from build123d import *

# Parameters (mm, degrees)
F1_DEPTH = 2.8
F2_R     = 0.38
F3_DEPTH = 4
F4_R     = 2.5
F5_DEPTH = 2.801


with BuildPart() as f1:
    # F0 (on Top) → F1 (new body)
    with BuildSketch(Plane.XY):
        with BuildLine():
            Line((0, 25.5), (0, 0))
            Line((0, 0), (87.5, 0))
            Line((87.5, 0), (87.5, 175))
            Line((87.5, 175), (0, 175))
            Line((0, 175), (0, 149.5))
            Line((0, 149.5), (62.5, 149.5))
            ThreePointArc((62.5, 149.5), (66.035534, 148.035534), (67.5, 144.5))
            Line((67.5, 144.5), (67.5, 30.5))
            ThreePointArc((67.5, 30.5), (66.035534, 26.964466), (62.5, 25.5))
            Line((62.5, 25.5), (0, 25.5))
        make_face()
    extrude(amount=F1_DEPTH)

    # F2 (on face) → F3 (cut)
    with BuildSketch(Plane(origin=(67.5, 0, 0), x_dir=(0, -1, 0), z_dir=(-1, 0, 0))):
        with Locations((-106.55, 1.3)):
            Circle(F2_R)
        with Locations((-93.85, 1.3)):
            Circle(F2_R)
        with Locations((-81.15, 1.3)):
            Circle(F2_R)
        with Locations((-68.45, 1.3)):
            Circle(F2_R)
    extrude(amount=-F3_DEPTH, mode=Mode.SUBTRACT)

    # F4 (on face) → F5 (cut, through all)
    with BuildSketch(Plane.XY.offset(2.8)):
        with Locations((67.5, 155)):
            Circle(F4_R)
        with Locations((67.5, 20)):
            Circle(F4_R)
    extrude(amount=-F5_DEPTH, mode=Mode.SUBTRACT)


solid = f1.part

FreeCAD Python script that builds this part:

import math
import FreeCAD as App
import Part
import Sketcher

V = App.Vector
Q = App.Units.Quantity

doc = App.newDocument("Part")
body = doc.addObject("PartDesign::Body", "Body")

# Sketch on XY plane
sketch1 = body.newObject("Sketcher::SketchObject", "Sketch")
sketch1.AttachmentSupport = (doc.getObject("XY_Plane"), [""])
sketch1.MapMode = "FlatFace"
sketch1.addGeometry(Part.LineSegment(V(0, 25.5, 0), V(0, 0, 0)), False)
sketch1.addGeometry(Part.LineSegment(V(0, 0, 0), V(87.5, 0, 0)), False)
sketch1.addGeometry(Part.LineSegment(V(87.5, 0, 0), V(87.5, 175, 0)), False)
sketch1.addGeometry(Part.LineSegment(V(87.5, 175, 0), V(0, 175, 0)), False)
sketch1.addGeometry(Part.LineSegment(V(0, 175, 0), V(0, 149.5, 0)), False)
sketch1.addGeometry(Part.LineSegment(V(0, 149.5, 0), V(62.5, 149.5, 0)), False)
sketch1.addGeometry(Part.ArcOfCircle(Part.Circle(V(62.5, 144.5, 0), V(0, 0, 1), 5), math.radians(0), math.radians(90)), False)
sketch1.addGeometry(Part.LineSegment(V(67.5, 144.5, 0), V(67.5, 30.5, 0)), False)
sketch1.addGeometry(Part.ArcOfCircle(Part.Circle(V(62.5, 30.5, 0), V(0, 0, 1), 5), math.radians(-90), math.radians(0)), False)
sketch1.addGeometry(Part.LineSegment(V(62.5, 25.5, 0), V(0, 25.5, 0)), False)
sketch1.addConstraint(Sketcher.Constraint("Coincident", 0, 2, 1, 1))
sketch1.addConstraint(Sketcher.Constraint("Coincident", 1, 2, 2, 1))
sketch1.addConstraint(Sketcher.Constraint("Coincident", 2, 2, 3, 1))
sketch1.addConstraint(Sketcher.Constraint("Coincident", 3, 2, 4, 1))
sketch1.addConstraint(Sketcher.Constraint("Coincident", 4, 2, 5, 1))
sketch1.addConstraint(Sketcher.Constraint("Tangent", 5, 2, 6, 2))
sketch1.addConstraint(Sketcher.Constraint("Tangent", 6, 1, 7, 1))
sketch1.addConstraint(Sketcher.Constraint("Tangent", 7, 2, 8, 2))
sketch1.addConstraint(Sketcher.Constraint("Tangent", 8, 1, 9, 1))
sketch1.addConstraint(Sketcher.Constraint("Coincident", 9, 2, 0, 1))
sketch1.addConstraint(Sketcher.Constraint("Vertical", 0))
sketch1.addConstraint(Sketcher.Constraint("Horizontal", 1))
sketch1.addConstraint(Sketcher.Constraint("Vertical", 2))
sketch1.addConstraint(Sketcher.Constraint("Horizontal", 3))
sketch1.addConstraint(Sketcher.Constraint("Vertical", 4))
sketch1.addConstraint(Sketcher.Constraint("Horizontal", 5))
sketch1.addConstraint(Sketcher.Constraint("Vertical", 7))
sketch1.addConstraint(Sketcher.Constraint("Horizontal", 9))
sketch1.addConstraint(Sketcher.Constraint("Coincident", 0, 2, -1, 1))
sketch1.addConstraint(Sketcher.Constraint("Equal", 6, 8))
sketch1.addConstraint(Sketcher.Constraint("PointOnObject", 3, 2, -2))
sketch1.addConstraint(Sketcher.Constraint("Equal", 0, 4))
sketch1.addConstraint(Sketcher.Constraint("Radius", 6, Q("5 mm")))
sketch1.addConstraint(Sketcher.Constraint("DistanceY", 2, 1, 2, 2, Q("175 mm")))
sketch1.addConstraint(Sketcher.Constraint("DistanceY", 7, 2, 7, 1, Q("114 mm")))
sketch1.addConstraint(Sketcher.Constraint("DistanceX", 1, 1, 1, 2, Q("87.5 mm")))
sketch1.addConstraint(Sketcher.Constraint("DistanceX", 5, 1, 5, 2, Q("62.5 mm")))
pad1 = body.newObject("PartDesign::Pad", "Pad")
pad1.Profile = sketch1
pad1.Length = 2.8

# Sketch on YZ plane
sketch2 = body.newObject("Sketcher::SketchObject", "Sketch001")
sketch2.AttachmentSupport = (doc.getObject("YZ_Plane"), [""])
sketch2.MapMode = "FlatFace"
sketch2.AttachmentOffset = App.Placement(V(0, 0, 67.5), App.Rotation())
sketch2.addGeometry(Part.Circle(V(106.55, 1.3, 0), V(0, 0, 1), 0.38), False)
sketch2.addGeometry(Part.Circle(V(93.85, 1.3, 0), V(0, 0, 1), 0.38), False)
sketch2.addGeometry(Part.Circle(V(81.15, 1.3, 0), V(0, 0, 1), 0.38), False)
sketch2.addGeometry(Part.Circle(V(68.45, 1.3, 0), V(0, 0, 1), 0.38), False)
sketch2.addConstraint(Sketcher.Constraint("Equal", 0, 1))
sketch2.addConstraint(Sketcher.Constraint("Equal", 1, 2))
sketch2.addConstraint(Sketcher.Constraint("Equal", 2, 3))
sketch2.addConstraint(Sketcher.Constraint("Horizontal", 0, 3, 1, 3))
sketch2.addConstraint(Sketcher.Constraint("Horizontal", 1, 3, 2, 3))
sketch2.addConstraint(Sketcher.Constraint("Horizontal", 2, 3, 3, 3))
sketch2.addConstraint(Sketcher.Constraint("Diameter", 0, Q("0.76 mm")))
sketch2.addConstraint(Sketcher.Constraint("DistanceY", -1, 1, 0, 3, Q("1.3 mm")))
sketch2.addConstraint(Sketcher.Constraint("DistanceX", 1, 3, 0, 3, Q("12.7 mm")))
sketch2.addConstraint(Sketcher.Constraint("DistanceX", 2, 3, 1, 3, Q("12.7 mm")))
sketch2.addConstraint(Sketcher.Constraint("DistanceX", 3, 3, 2, 3, Q("12.7 mm")))
sketch2.addConstraint(Sketcher.Constraint("DistanceX", -1, 1, 0, 3, Q("106.55 mm")))
pocket1 = body.newObject("PartDesign::Pocket", "Pocket")
pocket1.Profile = sketch2
pocket1.Length = 4
pocket1.Reversed = True

# Sketch on XY plane
sketch3 = body.newObject("Sketcher::SketchObject", "Sketch002")
sketch3.AttachmentSupport = (doc.getObject("XY_Plane"), [""])
sketch3.MapMode = "FlatFace"
sketch3.AttachmentOffset = App.Placement(V(0, 0, 2.8), App.Rotation())
sketch3.addGeometry(Part.Circle(V(67.5, 155, 0), V(0, 0, 1), 2.5), False)
sketch3.addGeometry(Part.Circle(V(67.5, 20, 0), V(0, 0, 1), 2.5), False)
sketch3.addConstraint(Sketcher.Constraint("Equal", 0, 1))
sketch3.addConstraint(Sketcher.Constraint("Vertical", 0, 3, 1, 3))
sketch3.addConstraint(Sketcher.Constraint("Diameter", 0, Q("5 mm")))
sketch3.addConstraint(Sketcher.Constraint("DistanceY", -1, 1, 0, 3, Q("155 mm")))
sketch3.addConstraint(Sketcher.Constraint("DistanceY", -1, 1, 1, 3, Q("20 mm")))
sketch3.addConstraint(Sketcher.Constraint("DistanceX", -1, 1, 0, 3, Q("67.5 mm")))
pocket2 = body.newObject("PartDesign::Pocket", "Pocket001")
pocket2.Profile = sketch3
pocket2.Type = "ThroughAll"

doc.recompute()
